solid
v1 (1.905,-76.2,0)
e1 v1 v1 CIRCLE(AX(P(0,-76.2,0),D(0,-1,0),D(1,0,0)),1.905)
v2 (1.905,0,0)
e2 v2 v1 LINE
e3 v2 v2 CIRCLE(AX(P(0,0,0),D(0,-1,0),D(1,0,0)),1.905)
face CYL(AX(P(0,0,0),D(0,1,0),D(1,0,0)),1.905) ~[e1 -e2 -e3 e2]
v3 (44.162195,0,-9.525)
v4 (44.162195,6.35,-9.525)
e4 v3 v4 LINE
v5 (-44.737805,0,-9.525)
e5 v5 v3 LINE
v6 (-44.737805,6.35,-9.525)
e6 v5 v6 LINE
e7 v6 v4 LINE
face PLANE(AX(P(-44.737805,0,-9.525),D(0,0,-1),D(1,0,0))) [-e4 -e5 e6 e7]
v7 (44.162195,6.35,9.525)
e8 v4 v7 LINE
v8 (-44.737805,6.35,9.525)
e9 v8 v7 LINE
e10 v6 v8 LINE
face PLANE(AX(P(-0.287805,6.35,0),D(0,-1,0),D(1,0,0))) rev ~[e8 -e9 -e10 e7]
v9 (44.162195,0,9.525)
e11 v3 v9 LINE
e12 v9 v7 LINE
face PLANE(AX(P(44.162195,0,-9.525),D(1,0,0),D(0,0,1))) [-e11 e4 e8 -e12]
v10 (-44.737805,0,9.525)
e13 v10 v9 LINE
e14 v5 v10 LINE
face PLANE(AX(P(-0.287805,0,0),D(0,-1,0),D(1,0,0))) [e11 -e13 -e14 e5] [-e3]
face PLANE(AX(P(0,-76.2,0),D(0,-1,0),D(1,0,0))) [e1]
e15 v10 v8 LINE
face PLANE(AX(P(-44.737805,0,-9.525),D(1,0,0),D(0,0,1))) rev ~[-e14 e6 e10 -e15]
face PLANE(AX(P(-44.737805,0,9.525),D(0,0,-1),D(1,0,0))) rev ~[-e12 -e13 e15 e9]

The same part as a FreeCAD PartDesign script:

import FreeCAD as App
import Part
import Sketcher
from FreeCAD import Vector
Q = App.Units.Quantity


def add_polygon(sketch, points):
    """Adds a closed chain of lines whose ends are joined by coincident constraints."""
    first, n = sketch.GeometryCount, len(points)
    for a, b in zip(points, points[1:] + points[:1]):
        sketch.addGeometry(Part.LineSegment(App.Vector(*a, 0), App.Vector(*b, 0)), False)
    for i in range(n):
        sketch.addConstraint(Sketcher.Constraint("Coincident", first + i, 2, first + (i + 1) % n, 1))

doc = App.newDocument("Part")
body = doc.addObject("PartDesign::Body", "Body")

sketch1 = body.newObject("Sketcher::SketchObject", "Sketch")
sketch1.AttachmentSupport = (doc.getObject("XZ_Plane"), [""])
sketch1.MapMode = "FlatFace"
sketch1.addGeometry(Part.Circle(Vector(0, 0, 0), Vector(0, 0, 1), 1.9), False)
sketch1.addConstraint([
    Sketcher.Constraint("Coincident", 0, 3, -1, 1),
    Sketcher.Constraint("Diameter", 0, Q("0.15 in")),
])
pad1 = body.newObject("PartDesign::Pad", "Pad")
pad1.Profile = sketch1
pad1.Length = Q("3 in")

sketch2 = body.newObject("Sketcher::SketchObject", "Sketch001")
sketch2.AttachmentSupport = (doc.getObject("XZ_Plane"), [""])
sketch2.MapMode = "FlatFace"
add_polygon(sketch2, [(-45, 10), (-45, -10), (44, -10), (44, 10)])
sketch2.addConstraint([
    Sketcher.Constraint("Vertical", 0),
    Sketcher.Constraint("Horizontal", 1),
    Sketcher.Constraint("Vertical", 2),
    Sketcher.Constraint("Horizontal", 3),
    Sketcher.Constraint("DistanceX", 1, 1, 1, 2, Q("3.5 in")),
    Sketcher.Constraint("DistanceY", 0, 2, 0, 1, Q("0.75 in")),
    Sketcher.Constraint("DistanceY", 0, 2, -1, 1, Q("0.375 in")),
    Sketcher.Constraint("DistanceX", 0, 2, -1, 1, 44.737805),
])
pad2 = body.newObject("PartDesign::Pad", "Pad001")
pad2.Profile = sketch2
pad2.Length = Q("0.25 in")
pad2.Reversed = True

doc.recompute()
